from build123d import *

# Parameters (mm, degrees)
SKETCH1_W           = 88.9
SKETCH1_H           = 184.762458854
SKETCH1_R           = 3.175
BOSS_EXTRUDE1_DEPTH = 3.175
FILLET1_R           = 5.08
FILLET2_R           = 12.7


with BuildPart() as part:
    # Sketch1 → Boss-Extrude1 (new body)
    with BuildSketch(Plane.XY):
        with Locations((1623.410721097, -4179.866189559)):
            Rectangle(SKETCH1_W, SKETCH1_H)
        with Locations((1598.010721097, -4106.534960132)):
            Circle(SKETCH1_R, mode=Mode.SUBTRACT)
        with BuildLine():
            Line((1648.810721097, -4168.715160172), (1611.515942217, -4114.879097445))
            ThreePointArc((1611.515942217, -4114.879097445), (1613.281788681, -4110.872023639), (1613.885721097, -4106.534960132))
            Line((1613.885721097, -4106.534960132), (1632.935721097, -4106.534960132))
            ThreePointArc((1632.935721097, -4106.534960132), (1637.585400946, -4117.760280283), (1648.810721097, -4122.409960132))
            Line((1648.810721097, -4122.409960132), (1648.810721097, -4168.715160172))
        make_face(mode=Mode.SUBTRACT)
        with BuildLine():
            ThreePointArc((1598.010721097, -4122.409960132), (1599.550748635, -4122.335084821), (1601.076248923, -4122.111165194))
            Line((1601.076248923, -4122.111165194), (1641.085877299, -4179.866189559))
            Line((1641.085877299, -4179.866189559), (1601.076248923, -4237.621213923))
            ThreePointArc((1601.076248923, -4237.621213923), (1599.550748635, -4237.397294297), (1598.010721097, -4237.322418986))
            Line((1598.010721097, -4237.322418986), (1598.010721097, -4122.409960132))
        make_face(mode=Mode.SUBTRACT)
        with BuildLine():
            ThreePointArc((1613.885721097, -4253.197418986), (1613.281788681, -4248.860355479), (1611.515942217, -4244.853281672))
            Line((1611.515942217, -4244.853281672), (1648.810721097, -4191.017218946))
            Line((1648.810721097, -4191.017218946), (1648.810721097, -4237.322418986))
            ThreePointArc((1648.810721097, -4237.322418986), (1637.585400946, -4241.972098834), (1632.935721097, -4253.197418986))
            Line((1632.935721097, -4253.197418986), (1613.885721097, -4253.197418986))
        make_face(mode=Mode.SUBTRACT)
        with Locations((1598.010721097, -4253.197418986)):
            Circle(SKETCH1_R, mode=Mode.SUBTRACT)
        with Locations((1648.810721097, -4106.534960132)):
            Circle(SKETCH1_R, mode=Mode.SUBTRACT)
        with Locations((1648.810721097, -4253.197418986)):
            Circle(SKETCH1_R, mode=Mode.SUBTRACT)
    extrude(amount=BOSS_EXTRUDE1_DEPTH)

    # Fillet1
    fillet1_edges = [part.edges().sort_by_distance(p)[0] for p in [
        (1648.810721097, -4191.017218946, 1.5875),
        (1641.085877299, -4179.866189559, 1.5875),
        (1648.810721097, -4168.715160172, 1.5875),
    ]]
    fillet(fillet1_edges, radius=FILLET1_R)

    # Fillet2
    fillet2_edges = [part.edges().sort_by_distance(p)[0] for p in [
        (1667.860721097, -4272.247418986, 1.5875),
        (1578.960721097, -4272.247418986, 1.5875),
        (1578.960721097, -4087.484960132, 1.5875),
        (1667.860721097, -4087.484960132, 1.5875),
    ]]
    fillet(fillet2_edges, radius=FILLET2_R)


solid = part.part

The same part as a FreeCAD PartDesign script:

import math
import FreeCAD as App
import Part
import Sketcher
from FreeCAD import Vector
Q = App.Units.Quantity


def edges_at(feature, points):
    """Names of the edges that pass closest to the given points."""
    edges = feature.Shape.Edges
    near = lambda p: min(range(len(edges)), key=lambda i: edges[i].distToShape(Part.Vertex(*p))[0])
    return sorted({f"Edge{near(p) + 1}" for p in points})


def add_polygon(sketch, points):
    """Adds a closed chain of lines whose ends are joined by coincident constraints."""
    first, n = sketch.GeometryCount, len(points)
    for a, b in zip(points, points[1:] + points[:1]):
        sketch.addGeometry(Part.LineSegment(App.Vector(*a, 0), App.Vector(*b, 0)), False)
    for i in range(n):
        sketch.addConstraint(Sketcher.Constraint("Coincident", first + i, 2, first + (i + 1) % n, 1))

doc = App.newDocument("Part")
body = doc.addObject("PartDesign::Body", "Body")

# Sketch on XY plane
sketch1 = body.newObject("Sketcher::SketchObject", "Sketch")
sketch1.AttachmentSupport = (doc.getObject("XY_Plane"), [""])
sketch1.MapMode = "FlatFace"
add_polygon(sketch1, [(1578.960721, -4087.48496), (1578.960721, -4272.247419), (1667.860721, -4272.247419), (1667.860721, -4087.48496)])  # lines 0-3
sketch1.addGeometry(Part.Circle(Vector(1598.010721, -4253.197419, 0), Vector(0, 0, 1), 3.175), False)  # 4
sketch1.addGeometry(Part.LineSegment(Vector(1632.935721, -4253.197419, 0), Vector(1613.885721, -4253.197419, 0)), False)  # 5
sketch1.addGeometry(Part.ArcOfCircle(Part.Circle(Vector(1598.010721, -4253.197419, 0), Vector(0, 0, 1), 15.875), math.radians(0), math.radians(31.709651)), False)  # 6
sketch1.addGeometry(Part.LineSegment(Vector(1611.515942, -4244.853282, 0), Vector(1648.810721, -4191.017219, 0)), False)  # 7
sketch1.addGeometry(Part.LineSegment(Vector(1648.810721, -4191.017219, 0), Vector(1648.810721, -4237.322419, 0)), False)  # 8
sketch1.addGeometry(Part.ArcOfCircle(Part.Circle(Vector(1648.810721, -4253.197419, 0), Vector(0, 0, 1), 15.875), math.radians(90), math.radians(180)), False)  # 9
sketch1.addGeometry(Part.Circle(Vector(1648.810721, -4253.197419, 0), Vector(0, 0, 1), 3.175), False)  # 10
sketch1.addGeometry(Part.LineSegment(Vector(1598.010721, -4237.322419, 0), Vector(1598.010721, -4122.40996, 0)), False)  # 11
sketch1.addGeometry(Part.ArcOfCircle(Part.Circle(Vector(1598.010721, -4106.53496, 0), Vector(0, 0, 1), 15.875), math.radians(-90), math.radians(-78.866007)), False)  # 12
sketch1.addGeometry(Part.LineSegment(Vector(1601.076249, -4122.111165, 0), Vector(1641.085877, -4179.86619, 0)), False)  # 13
sketch1.addGeometry(Part.LineSegment(Vector(1641.085877, -4179.86619, 0), Vector(1601.076249, -4237.621214, 0)), False)  # 14
sketch1.addGeometry(Part.ArcOfCircle(Part.Circle(Vector(1598.010721, -4253.197419, 0), Vector(0, 0, 1), 15.875), math.radians(78.866008), math.radians(90)), False)  # 15
sketch1.addGeometry(Part.Circle(Vector(1598.010721, -4106.53496, 0), Vector(0, 0, 1), 3.175), False)  # 16
sketch1.addGeometry(Part.LineSegment(Vector(1648.810721, -4122.40996, 0), Vector(1648.810721, -4168.71516, 0)), False)  # 17
sketch1.addGeometry(Part.LineSegment(Vector(1648.810721, -4168.71516, 0), Vector(1611.515942, -4114.879097, 0)), False)  # 18
sketch1.addGeometry(Part.ArcOfCircle(Part.Circle(Vector(1598.010721, -4106.53496, 0), Vector(0, 0, 1), 15.875), math.radians(-31.709651), math.radians(0)), False)  # 19
sketch1.addGeometry(Part.LineSegment(Vector(1613.885721, -4106.53496, 0), Vector(1632.935721, -4106.53496, 0)), False)  # 20
sketch1.addGeometry(Part.ArcOfCircle(Part.Circle(Vector(1648.810721, -4106.53496, 0), Vector(0, 0, 1), 15.875), math.radians(-180), math.radians(-90)), False)  # 21
sketch1.addGeometry(Part.Circle(Vector(1648.810721, -4106.53496, 0), Vector(0, 0, 1), 3.175), False)  # 22
sketch1.addConstraint(Sketcher.Constraint("Coincident", 5, 2, 6, 1))
sketch1.addConstraint(Sketcher.Constraint("Coincident", 6, 2, 7, 1))
sketch1.addConstraint(Sketcher.Constraint("Coincident", 7, 2, 8, 1))
sketch1.addConstraint(Sketcher.Constraint("Coincident", 8, 2, 9, 1))
sketch1.addConstraint(Sketcher.Constraint("Coincident", 9, 2, 5, 1))
sketch1.addConstraint(Sketcher.Constraint("Coincident", 11, 2, 12, 1))
sketch1.addConstraint(Sketcher.Constraint("Coincident", 12, 2, 13, 1))
sketch1.addConstraint(Sketcher.Constraint("Coincident", 13, 2, 14, 1))
sketch1.addConstraint(Sketcher.Constraint("Coincident", 14, 2, 15, 1))
sketch1.addConstraint(Sketcher.Constraint("Coincident", 15, 2, 11, 1))
sketch1.addConstraint(Sketcher.Constraint("Coincident", 17, 2, 18, 1))
sketch1.addConstraint(Sketcher.Constraint("Coincident", 18, 2, 19, 1))
sketch1.addConstraint(Sketcher.Constraint("Coincident", 19, 2, 20, 1))
sketch1.addConstraint(Sketcher.Constraint("Coincident", 20, 2, 21, 1))
sketch1.addConstraint(Sketcher.Constraint("Coincident", 21, 2, 17, 1))
sketch1.addConstraint(Sketcher.Constraint("Vertical", 0))
sketch1.addConstraint(Sketcher.Constraint("Horizontal", 1))
sketch1.addConstraint(Sketcher.Constraint("Vertical", 2))
sketch1.addConstraint(Sketcher.Constraint("Horizontal", 3))
sketch1.addConstraint(Sketcher.Constraint("Horizontal", 5))
sketch1.addConstraint(Sketcher.Constraint("Vertical", 8))
sketch1.addConstraint(Sketcher.Constraint("Vertical", 11))
sketch1.addConstraint(Sketcher.Constraint("Vertical", 17))
sketch1.addConstraint(Sketcher.Constraint("Horizontal", 20))
sketch1.addConstraint(Sketcher.Constraint("Coincident", 6, 3, 4, 3))
sketch1.addConstraint(Sketcher.Constraint("Coincident", 10, 3, 9, 3))
sketch1.addConstraint(Sketcher.Constraint("Coincident", 15, 3, 4, 3))
sketch1.addConstraint(Sketcher.Constraint("Coincident", 16, 3, 12, 3))
sketch1.addConstraint(Sketcher.Constraint("Coincident", 19, 3, 12, 3))
sketch1.addConstraint(Sketcher.Constraint("Coincident", 22, 3, 21, 3))
sketch1.addConstraint(Sketcher.Constraint("Equal", 6, 9))
sketch1.addConstraint(Sketcher.Constraint("Equal", 4, 10))
sketch1.addConstraint(Sketcher.Constraint("Equal", 9, 12))
sketch1.addConstraint(Sketcher.Constraint("Equal", 12, 15))
sketch1.addConstraint(Sketcher.Constraint("Equal", 10, 16))
sketch1.addConstraint(Sketcher.Constraint("Equal", 15, 19))
sketch1.addConstraint(Sketcher.Constraint("Equal", 19, 21))
sketch1.addConstraint(Sketcher.Constraint("Equal", 16, 22))
sketch1.addConstraint(Sketcher.Constraint("Parallel", 7, 14))
sketch1.addConstraint(Sketcher.Constraint("Parallel", 13, 18))
sketch1.addConstraint(Sketcher.Constraint("Horizontal", 6, 3, 9, 3))
sketch1.addConstraint(Sketcher.Constraint("Horizontal", 19, 3, 21, 3))
sketch1.addConstraint(Sketcher.Constraint("Horizontal", 15, 3, 5, 2))
sketch1.addConstraint(Sketcher.Constraint("Horizontal", 22, 3, 19, 2))
sketch1.addConstraint(Sketcher.Constraint("Vertical", 6, 3, 12, 3))
sketch1.addConstraint(Sketcher.Constraint("Vertical", 10, 3, 21, 3))
sketch1.addConstraint(Sketcher.Constraint("Vertical", 22, 3, 7, 2))
sketch1.addConstraint(Sketcher.Constraint("Vertical", 19, 3, 11, 2))
sketch1.addConstraint(Sketcher.Constraint("Vertical", 12, 2, 14, 2))
sketch1.addConstraint(Sketcher.Constraint("Vertical", 8, 2, 17, 2))
sketch1.addConstraint(Sketcher.Constraint("Vertical", 6, 2, 18, 2))
sketch1.addConstraint(Sketcher.Constraint("Equal", 8, 17))
sketch1.addConstraint(Sketcher.Constraint("Diameter", 4, Q("0.25 in")))
sketch1.addConstraint(Sketcher.Constraint("DistanceX", 1, 1, 1, 2, Q("3.5 in")))
sketch1.addConstraint(Sketcher.Constraint("Radius", 6, Q("0.625 in")))
sketch1.addConstraint(Sketcher.Constraint("DistanceX", 6, 3, 9, 3, Q("2 in")))
sketch1.addConstraint(Sketcher.Constraint("DistanceX", 0, 2, 15, 3, Q("0.75 in")))
sketch1.addConstraint(Sketcher.Constraint("DistanceY", 0, 2, 15, 3, Q("0.75 in")))
sketch1.addConstraint(Sketcher.Constraint("DistanceY", 21, 3, 2, 2, Q("0.75 in")))
sketch1.addConstraint(Sketcher.Constraint("DistanceY", 8, 2, 8, 1, 46.3052))
sketch1.addConstraint(Sketcher.Constraint("DistanceY", 0, 2, 0, 1, 184.762459))
sketch1.addConstraint(Sketcher.Constraint("DistanceX", -1, 1, 4, 3, 1598.010721))
sketch1.addConstraint(Sketcher.Constraint("DistanceY", 4, 3, -1, 1, 4253.197419))
sketch1.addConstraint(Sketcher.Constraint("DistanceY", 6, 2, -1, 1, 4244.853282))
sketch1.addConstraint(Sketcher.Constraint("DistanceX", -1, 1, 12, 2, 1601.076249))
pad1 = body.newObject("PartDesign::Pad", "Pad")
pad1.Profile = sketch1
pad1.Length = Q("0.125 in")
doc.recompute()

fillet = body.newObject("PartDesign::Fillet", "Fillet")
fillet.Base = (pad1, edges_at(pad1, [(1648.811, -4191.017, 1.587), (1641.086, -4179.866, 1.587), (1648.811, -4168.715, 1.587)]))
fillet.Radius = Q("0.2 in")
doc.recompute()

fillet2 = body.newObject("PartDesign::Fillet", "Fillet001")
fillet2.Base = (fillet, edges_at(fillet, [
    (1667.861, -4272.247, 1.587),
    (1578.961, -4272.247, 1.587),
    (1578.961, -4087.485, 1.587),
    (1667.861, -4087.485, 1.587),
]))
fillet2.Radius = Q("0.5 in")

doc.recompute()
